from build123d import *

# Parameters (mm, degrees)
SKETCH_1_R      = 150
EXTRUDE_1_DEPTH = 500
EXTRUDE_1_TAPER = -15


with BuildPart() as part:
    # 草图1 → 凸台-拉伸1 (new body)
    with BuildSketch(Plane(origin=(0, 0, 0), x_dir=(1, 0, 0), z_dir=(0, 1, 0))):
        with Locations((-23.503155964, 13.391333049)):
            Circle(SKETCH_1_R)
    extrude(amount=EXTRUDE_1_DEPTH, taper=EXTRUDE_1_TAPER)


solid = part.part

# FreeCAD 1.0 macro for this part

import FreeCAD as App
import Part
import Sketcher
from FreeCAD import Vector

doc = App.newDocument("Part")
body = doc.addObject("PartDesign::Body", "Body")

# Sketch on XZ plane
sketch1 = body.newObject("Sketcher::SketchObject", "Sketch")
sketch1.AttachmentSupport = (doc.getObject("XZ_Plane"), [""])
sketch1.MapMode = "FlatFace"
sketch1.addGeometry(Part.Circle(Vector(-24, -13, 0), Vector(0, 0, 1), 150), False)
sketch1.addConstraint([
    Sketcher.Constraint("Diameter", 0, 300.0),
    Sketcher.Constraint("DistanceX", 0, 3, -1, 1, 23.503156),
    Sketcher.Constraint("DistanceY", 0, 3, -1, 1, 13.391333),
])
pad1 = body.newObject("PartDesign::Pad", "Pad")
pad1.Profile = sketch1
pad1.Length = 500
pad1.Reversed = True
pad1.TaperAngle = 15

doc.recompute()
